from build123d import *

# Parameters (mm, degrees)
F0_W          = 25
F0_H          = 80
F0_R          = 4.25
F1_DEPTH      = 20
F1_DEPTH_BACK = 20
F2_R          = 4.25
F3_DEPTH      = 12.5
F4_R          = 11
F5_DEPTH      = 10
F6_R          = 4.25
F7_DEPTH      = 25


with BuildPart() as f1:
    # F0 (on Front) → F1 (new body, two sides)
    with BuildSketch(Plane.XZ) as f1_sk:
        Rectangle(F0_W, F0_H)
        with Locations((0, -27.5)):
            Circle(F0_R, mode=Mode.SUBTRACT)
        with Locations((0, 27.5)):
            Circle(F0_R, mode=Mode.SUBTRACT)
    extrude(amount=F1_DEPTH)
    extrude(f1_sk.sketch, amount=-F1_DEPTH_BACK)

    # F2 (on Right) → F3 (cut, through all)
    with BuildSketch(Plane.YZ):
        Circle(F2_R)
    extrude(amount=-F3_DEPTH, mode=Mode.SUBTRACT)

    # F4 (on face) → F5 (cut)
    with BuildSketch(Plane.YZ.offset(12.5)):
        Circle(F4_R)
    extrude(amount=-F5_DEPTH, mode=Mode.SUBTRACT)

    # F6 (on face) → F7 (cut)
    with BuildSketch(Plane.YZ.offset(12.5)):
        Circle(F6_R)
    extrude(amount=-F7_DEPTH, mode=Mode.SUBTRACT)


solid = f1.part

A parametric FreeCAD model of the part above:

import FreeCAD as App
import Part
import Sketcher
from FreeCAD import Vector

doc = App.newDocument("Part")
params = doc.addObject("Spreadsheet::Sheet", "Params")
for row, (alias, value) in enumerate([
    ("sketch1_diameter", "8.5 mm"),
    ("sketch1_width", "25 mm"),
    ("sketch1_height", "80 mm"),
    ("pad1_length", "20 mm"),
    ("pad1_length2", "20 mm"),
    ("sketch2_diameter", "8.5 mm"),
    ("sketch3_diameter", "22 mm"),
    ("pocket2_length", "10 mm"),
    ("sketch4_diameter", "8.5 mm"),
    ("pocket3_length", "25 mm"),
], start=1):
    params.set(f"A{row}", alias)
    params.set(f"B{row}", "=" + value)
    params.setAlias(f"B{row}", alias)

body = doc.addObject("PartDesign::Body", "Body")

# Sketch on XZ plane
sketch1 = body.newObject("Sketcher::SketchObject", "Sketch")
sketch1.AttachmentSupport = (doc.getObject("XZ_Plane"), [""])
sketch1.MapMode = "FlatFace"
sketch1.addGeometry(Part.LineSegment(Vector(-12.5, 40, 0), Vector(-12.5, -40, 0)), False)
sketch1.addGeometry(Part.LineSegment(Vector(-12.5, -40, 0), Vector(12.5, -40, 0)), False)
sketch1.addGeometry(Part.LineSegment(Vector(12.5, -40, 0), Vector(12.5, 40, 0)), False)
sketch1.addGeometry(Part.LineSegment(Vector(12.5, 40, 0), Vector(-12.5, 40, 0)), False)
sketch1.addGeometry(Part.Circle(Vector(0, -27.5, 0), Vector(0, 0, 1), 4.2), False)
sketch1.addGeometry(Part.Circle(Vector(0, 27.5, 0), Vector(0, 0, 1), 4.2), False)
sketch1.addConstraint(Sketcher.Constraint("Coincident", 0, 2, 1, 1))
sketch1.addConstraint(Sketcher.Constraint("Coincident", 1, 2, 2, 1))
sketch1.addConstraint(Sketcher.Constraint("Coincident", 2, 2, 3, 1))
sketch1.addConstraint(Sketcher.Constraint("Coincident", 3, 2, 0, 1))
sketch1.addConstraint(Sketcher.Constraint("Vertical", 0))
sketch1.addConstraint(Sketcher.Constraint("Horizontal", 1))
sketch1.addConstraint(Sketcher.Constraint("Vertical", 2))
sketch1.addConstraint(Sketcher.Constraint("Horizontal", 3))
sketch1.addConstraint(Sketcher.Constraint("Equal", 4, 5))
sketch1.addConstraint(Sketcher.Constraint("Symmetric", 4, 3, 5, 3, -1, 1))
sketch1.addConstraint(Sketcher.Constraint("Symmetric", 0, 2, 2, 2, -1, 1))
sketch1.addConstraint(Sketcher.Constraint("PointOnObject", 4, 3, -2))
sketch1.addConstraint(Sketcher.Constraint("Diameter", 4, 8.5))
sketch1.addConstraint(Sketcher.Constraint("DistanceX", 1, 1, 1, 2, 25.0))
sketch1.addConstraint(Sketcher.Constraint("DistanceY", 0, 2, 0, 1, 80.0))
sketch1.addConstraint(Sketcher.Constraint("DistanceY", 4, 3, 5, 3, 55.0))
sketch1.setExpression("Constraints[12]", "Params.sketch1_diameter")
sketch1.setExpression("Constraints[13]", "Params.sketch1_width")
sketch1.setExpression("Constraints[14]", "Params.sketch1_height")
pad1 = body.newObject("PartDesign::Pad", "Pad")
pad1.Profile = sketch1
pad1.Type = "TwoLengths"
pad1.setExpression("Length", "Params.pad1_length")
pad1.setExpression("Length2", "Params.pad1_length2")

# Sketch on YZ plane
sketch2 = body.newObject("Sketcher::SketchObject", "Sketch001")
sketch2.AttachmentSupport = (doc.getObject("YZ_Plane"), [""])
sketch2.MapMode = "FlatFace"
sketch2.addGeometry(Part.Circle(Vector(0, 0, 0), Vector(0, 0, 1), 4.2), False)
sketch2.addConstraint(Sketcher.Constraint("Coincident", 0, 3, -1, 1))
sketch2.addConstraint(Sketcher.Constraint("Diameter", 0, 8.5))
sketch2.setExpression("Constraints[1]", "Params.sketch2_diameter")
pocket1 = body.newObject("PartDesign::Pocket", "Pocket")
pocket1.Profile = sketch2
pocket1.Type = "ThroughAll"

# Sketch on YZ plane
sketch3 = body.newObject("Sketcher::SketchObject", "Sketch002")
sketch3.AttachmentSupport = (doc.getObject("YZ_Plane"), [""])
sketch3.MapMode = "FlatFace"
sketch3.AttachmentOffset = App.Placement(Vector(0, 0, 12.5), App.Rotation())
sketch3.addGeometry(Part.Circle(Vector(0, 0, 0), Vector(0, 0, 1), 11), False)
sketch3.addConstraint(Sketcher.Constraint("Coincident", 0, 3, -1, 1))
sketch3.addConstraint(Sketcher.Constraint("Diameter", 0, 22.0))
sketch3.setExpression("Constraints[1]", "Params.sketch3_diameter")
pocket2 = body.newObject("PartDesign::Pocket", "Pocket001")
pocket2.Profile = sketch3
pocket2.setExpression("Length", "Params.pocket2_length")

# Sketch on YZ plane
sketch4 = body.newObject("Sketcher::SketchObject", "Sketch003")
sketch4.AttachmentSupport = (doc.getObject("YZ_Plane"), [""])
sketch4.MapMode = "FlatFace"
sketch4.AttachmentOffset = App.Placement(Vector(0, 0, 12.5), App.Rotation())
sketch4.addGeometry(Part.Circle(Vector(0, 0, 0), Vector(0, 0, 1), 4.2), False)
sketch4.addConstraint(Sketcher.Constraint("Coincident", 0, 3, -1, 1))
sketch4.addConstraint(Sketcher.Constraint("Diameter", 0, 8.5))
sketch4.setExpression("Constraints[1]", "Params.sketch4_diameter")
pocket3 = body.newObject("PartDesign::Pocket", "Pocket002")
pocket3.Profile = sketch4
pocket3.setExpression("Length", "Params.pocket3_length")

doc.recompute()
